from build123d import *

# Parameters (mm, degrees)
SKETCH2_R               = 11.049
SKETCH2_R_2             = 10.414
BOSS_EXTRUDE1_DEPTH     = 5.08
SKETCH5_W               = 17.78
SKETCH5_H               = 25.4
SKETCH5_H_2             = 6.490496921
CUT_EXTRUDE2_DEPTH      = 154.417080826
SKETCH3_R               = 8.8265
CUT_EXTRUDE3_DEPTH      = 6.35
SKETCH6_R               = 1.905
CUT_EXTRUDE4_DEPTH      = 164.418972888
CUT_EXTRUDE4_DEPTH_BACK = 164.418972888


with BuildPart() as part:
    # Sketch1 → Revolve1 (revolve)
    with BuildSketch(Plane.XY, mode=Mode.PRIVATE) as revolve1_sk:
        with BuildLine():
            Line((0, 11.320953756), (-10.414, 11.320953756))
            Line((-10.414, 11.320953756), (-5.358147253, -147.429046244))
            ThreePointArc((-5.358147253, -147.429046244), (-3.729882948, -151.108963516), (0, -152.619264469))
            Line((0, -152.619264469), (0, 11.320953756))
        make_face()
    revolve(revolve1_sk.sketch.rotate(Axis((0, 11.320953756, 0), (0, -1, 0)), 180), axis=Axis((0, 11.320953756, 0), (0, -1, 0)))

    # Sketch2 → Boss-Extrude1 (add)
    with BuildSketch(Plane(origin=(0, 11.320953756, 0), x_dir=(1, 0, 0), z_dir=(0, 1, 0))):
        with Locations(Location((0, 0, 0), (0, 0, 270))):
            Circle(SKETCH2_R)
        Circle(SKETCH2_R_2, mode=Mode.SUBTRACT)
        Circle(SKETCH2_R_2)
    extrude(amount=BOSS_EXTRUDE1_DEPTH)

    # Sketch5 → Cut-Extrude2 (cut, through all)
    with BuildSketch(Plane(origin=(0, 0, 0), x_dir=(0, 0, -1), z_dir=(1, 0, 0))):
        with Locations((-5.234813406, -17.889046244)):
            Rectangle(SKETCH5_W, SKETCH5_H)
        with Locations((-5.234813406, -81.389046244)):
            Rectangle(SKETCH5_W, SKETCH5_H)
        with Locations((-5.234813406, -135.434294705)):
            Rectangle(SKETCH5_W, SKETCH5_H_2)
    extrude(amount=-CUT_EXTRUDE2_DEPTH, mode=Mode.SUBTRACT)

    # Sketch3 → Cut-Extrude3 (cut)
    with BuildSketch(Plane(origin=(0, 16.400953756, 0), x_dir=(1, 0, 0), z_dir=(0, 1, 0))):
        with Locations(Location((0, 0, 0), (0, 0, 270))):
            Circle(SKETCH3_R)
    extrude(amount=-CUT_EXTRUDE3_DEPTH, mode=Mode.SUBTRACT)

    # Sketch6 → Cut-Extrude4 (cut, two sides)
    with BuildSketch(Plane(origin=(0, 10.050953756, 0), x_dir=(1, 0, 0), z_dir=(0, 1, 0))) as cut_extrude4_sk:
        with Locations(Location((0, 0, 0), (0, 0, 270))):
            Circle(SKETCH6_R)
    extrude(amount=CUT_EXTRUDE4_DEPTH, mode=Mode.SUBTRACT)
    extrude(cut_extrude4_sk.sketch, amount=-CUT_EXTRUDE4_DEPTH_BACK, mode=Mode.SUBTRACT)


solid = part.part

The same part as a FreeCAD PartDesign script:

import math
import FreeCAD as App
import Part
import Sketcher
from FreeCAD import Vector
Q = App.Units.Quantity


def add_polygon(sketch, points):
    """Adds a closed chain of lines whose ends are joined by coincident constraints."""
    first, n = sketch.GeometryCount, len(points)
    for a, b in zip(points, points[1:] + points[:1]):
        sketch.addGeometry(Part.LineSegment(App.Vector(*a, 0), App.Vector(*b, 0)), False)
    for i in range(n):
        sketch.addConstraint(Sketcher.Constraint("Coincident", first + i, 2, first + (i + 1) % n, 1))

doc = App.newDocument("Part")
body = doc.addObject("PartDesign::Body", "Body")

sketch1 = body.newObject("Sketcher::SketchObject", "Sketch")
sketch1.AttachmentSupport = (doc.getObject("XY_Plane"), [""])
sketch1.MapMode = "FlatFace"
sketch1.addGeometry([
    Part.LineSegment(Vector(0, 11, 0), Vector(-10, 11, 0)),
    Part.LineSegment(Vector(-10, 11, 0), Vector(-5, -147, 0)),
    Part.ArcOfCircle(Part.Circle(Vector(0, -147, 0), Vector(0, 0, 1), 5), math.radians(-178), math.radians(-90)),
    Part.LineSegment(Vector(0, -153, 0), Vector(0, 11, 0)),
], False)
sketch1.addConstraint([
    Sketcher.Constraint("Coincident", 0, 2, 1, 1),
    Sketcher.Constraint("Tangent", 1, 2, 2, 1),
    Sketcher.Constraint("Coincident", 2, 2, 3, 1),
    Sketcher.Constraint("Coincident", 3, 2, 0, 1),
    Sketcher.Constraint("Horizontal", 0),
    Sketcher.Constraint("Vertical", 3),
    Sketcher.Constraint("PointOnObject", 2, 3, -2),
    Sketcher.Constraint("PointOnObject", 2, 2, -2),
    Sketcher.Constraint("DistanceX", 0, 2, 0, 1, Q("0.41 in")),
    Sketcher.Constraint("DistanceY", 1, 2, 0, 2, Q("6.25 in")),
    Sketcher.Constraint("Radius", 2, Q("5.360864 mm")),
    Sketcher.Constraint("DistanceY", 2, 3, -1, 1, Q("147.258401 mm")),
])
revolution = body.newObject("PartDesign::Revolution", "Revolution")
revolution.Profile = sketch1
revolution.ReferenceAxis = (sketch1, ["V_Axis"])
revolution.Angle = 360

sketch2 = body.newObject("Sketcher::SketchObject", "Sketch001")
sketch2.AttachmentSupport = (doc.getObject("XZ_Plane"), [""])
sketch2.MapMode = "FlatFace"
sketch2.AttachmentOffset = App.Placement(Vector(0, 0, -11.320954), App.Rotation())
sketch2.addGeometry(Part.Circle(Vector(0, 0, 0), Vector(0, 0, 1), 11), False)
sketch2.addConstraint([
    Sketcher.Constraint("Coincident", 0, 3, -1, 1),
    Sketcher.Constraint("Diameter", 0, Q("0.87 in")),
])
pad1 = body.newObject("PartDesign::Pad", "Pad")
pad1.Profile = sketch2
pad1.Length = Q("0.2 in")
pad1.Reversed = True

sketch3 = body.newObject("Sketcher::SketchObject", "Sketch002")
sketch3.AttachmentSupport = (doc.getObject("YZ_Plane"), [""])
sketch3.MapMode = "FlatFace"
add_polygon(sketch3, [(-5, 14), (-31, 14), (-31, -4), (-5, -4)])
add_polygon(sketch3, [(-69, 14), (-94, 14), (-94, -4), (-69, -4)])
add_polygon(sketch3, [(-132, 14), (-139, 14), (-139, -4), (-132, -4)])
sketch3.addConstraint([
    Sketcher.Constraint("Horizontal", 0),
    Sketcher.Constraint("Vertical", 1),
    Sketcher.Constraint("Horizontal", 2),
    Sketcher.Constraint("Vertical", 3),
    Sketcher.Constraint("Horizontal", 4),
    Sketcher.Constraint("Vertical", 5),
    Sketcher.Constraint("Horizontal", 6),
    Sketcher.Constraint("Vertical", 7),
    Sketcher.Constraint("Horizontal", 8),
    Sketcher.Constraint("Vertical", 9),
    Sketcher.Constraint("Horizontal", 10),
    Sketcher.Constraint("Vertical", 11),
    Sketcher.Constraint("Horizontal", 3, 2, 4, 2),
    Sketcher.Constraint("Horizontal", 2, 2, 5, 2),
    Sketcher.Constraint("Horizontal", 7, 2, 8, 2),
    Sketcher.Constraint("Horizontal", 6, 2, 9, 2),
    Sketcher.Constraint("Equal", 2, 4),
    Sketcher.Constraint("DistanceX", 0, 2, 0, 1, Q("1 in")),
    Sketcher.Constraint("DistanceY", 1, 2, 1, 1, Q("0.7 in")),
    Sketcher.Constraint("DistanceX", 4, 2, 0, 2, Q("2.5 in")),
    Sketcher.Constraint("DistanceX", 10, 2, 5, 2, Q("1.5 in")),
    Sketcher.Constraint("DistanceX", 8, 2, 8, 1, Q("6.490497 mm")),
    Sketcher.Constraint("DistanceX", 0, 2, -1, 1, Q("30.589046 mm")),
    Sketcher.Constraint("DistanceY", -1, 1, 0, 2, Q("14.124813 mm")),
])
pocket1 = body.newObject("PartDesign::Pocket", "Pocket")
pocket1.Profile = sketch3
pocket1.Type = "ThroughAll"

sketch4 = body.newObject("Sketcher::SketchObject", "Sketch003")
sketch4.AttachmentSupport = (doc.getObject("XZ_Plane"), [""])
sketch4.MapMode = "FlatFace"
sketch4.AttachmentOffset = App.Placement(Vector(0, 0, -16.400954), App.Rotation())
sketch4.addGeometry(Part.Circle(Vector(0, 0, 0), Vector(0, 0, 1), 9), False)
sketch4.addConstraint([
    Sketcher.Constraint("Coincident", 0, 3, -1, 1),
    Sketcher.Constraint("Diameter", 0, Q("0.695 in")),
])
pocket2 = body.newObject("PartDesign::Pocket", "Pocket001")
pocket2.Profile = sketch4
pocket2.Length = Q("0.25 in")
pocket2.Reversed = True

sketch5 = body.newObject("Sketcher::SketchObject", "Sketch004")
sketch5.AttachmentSupport = (doc.getObject("XZ_Plane"), [""])
sketch5.MapMode = "FlatFace"
sketch5.AttachmentOffset = App.Placement(Vector(0, 0, -10.050954), App.Rotation())
sketch5.addGeometry(Part.Circle(Vector(0, 0, 0), Vector(0, 0, 1), 1.9), False)
sketch5.addConstraint([
    Sketcher.Constraint("Coincident", 0, 3, -1, 1),
    Sketcher.Constraint("Diameter", 0, Q("0.15 in")),
])
pocket3 = body.newObject("PartDesign::Pocket", "Pocket002")
pocket3.Profile = sketch5
pocket3.Type = "ThroughAll"
pocket3.Midplane = True

doc.recompute()
